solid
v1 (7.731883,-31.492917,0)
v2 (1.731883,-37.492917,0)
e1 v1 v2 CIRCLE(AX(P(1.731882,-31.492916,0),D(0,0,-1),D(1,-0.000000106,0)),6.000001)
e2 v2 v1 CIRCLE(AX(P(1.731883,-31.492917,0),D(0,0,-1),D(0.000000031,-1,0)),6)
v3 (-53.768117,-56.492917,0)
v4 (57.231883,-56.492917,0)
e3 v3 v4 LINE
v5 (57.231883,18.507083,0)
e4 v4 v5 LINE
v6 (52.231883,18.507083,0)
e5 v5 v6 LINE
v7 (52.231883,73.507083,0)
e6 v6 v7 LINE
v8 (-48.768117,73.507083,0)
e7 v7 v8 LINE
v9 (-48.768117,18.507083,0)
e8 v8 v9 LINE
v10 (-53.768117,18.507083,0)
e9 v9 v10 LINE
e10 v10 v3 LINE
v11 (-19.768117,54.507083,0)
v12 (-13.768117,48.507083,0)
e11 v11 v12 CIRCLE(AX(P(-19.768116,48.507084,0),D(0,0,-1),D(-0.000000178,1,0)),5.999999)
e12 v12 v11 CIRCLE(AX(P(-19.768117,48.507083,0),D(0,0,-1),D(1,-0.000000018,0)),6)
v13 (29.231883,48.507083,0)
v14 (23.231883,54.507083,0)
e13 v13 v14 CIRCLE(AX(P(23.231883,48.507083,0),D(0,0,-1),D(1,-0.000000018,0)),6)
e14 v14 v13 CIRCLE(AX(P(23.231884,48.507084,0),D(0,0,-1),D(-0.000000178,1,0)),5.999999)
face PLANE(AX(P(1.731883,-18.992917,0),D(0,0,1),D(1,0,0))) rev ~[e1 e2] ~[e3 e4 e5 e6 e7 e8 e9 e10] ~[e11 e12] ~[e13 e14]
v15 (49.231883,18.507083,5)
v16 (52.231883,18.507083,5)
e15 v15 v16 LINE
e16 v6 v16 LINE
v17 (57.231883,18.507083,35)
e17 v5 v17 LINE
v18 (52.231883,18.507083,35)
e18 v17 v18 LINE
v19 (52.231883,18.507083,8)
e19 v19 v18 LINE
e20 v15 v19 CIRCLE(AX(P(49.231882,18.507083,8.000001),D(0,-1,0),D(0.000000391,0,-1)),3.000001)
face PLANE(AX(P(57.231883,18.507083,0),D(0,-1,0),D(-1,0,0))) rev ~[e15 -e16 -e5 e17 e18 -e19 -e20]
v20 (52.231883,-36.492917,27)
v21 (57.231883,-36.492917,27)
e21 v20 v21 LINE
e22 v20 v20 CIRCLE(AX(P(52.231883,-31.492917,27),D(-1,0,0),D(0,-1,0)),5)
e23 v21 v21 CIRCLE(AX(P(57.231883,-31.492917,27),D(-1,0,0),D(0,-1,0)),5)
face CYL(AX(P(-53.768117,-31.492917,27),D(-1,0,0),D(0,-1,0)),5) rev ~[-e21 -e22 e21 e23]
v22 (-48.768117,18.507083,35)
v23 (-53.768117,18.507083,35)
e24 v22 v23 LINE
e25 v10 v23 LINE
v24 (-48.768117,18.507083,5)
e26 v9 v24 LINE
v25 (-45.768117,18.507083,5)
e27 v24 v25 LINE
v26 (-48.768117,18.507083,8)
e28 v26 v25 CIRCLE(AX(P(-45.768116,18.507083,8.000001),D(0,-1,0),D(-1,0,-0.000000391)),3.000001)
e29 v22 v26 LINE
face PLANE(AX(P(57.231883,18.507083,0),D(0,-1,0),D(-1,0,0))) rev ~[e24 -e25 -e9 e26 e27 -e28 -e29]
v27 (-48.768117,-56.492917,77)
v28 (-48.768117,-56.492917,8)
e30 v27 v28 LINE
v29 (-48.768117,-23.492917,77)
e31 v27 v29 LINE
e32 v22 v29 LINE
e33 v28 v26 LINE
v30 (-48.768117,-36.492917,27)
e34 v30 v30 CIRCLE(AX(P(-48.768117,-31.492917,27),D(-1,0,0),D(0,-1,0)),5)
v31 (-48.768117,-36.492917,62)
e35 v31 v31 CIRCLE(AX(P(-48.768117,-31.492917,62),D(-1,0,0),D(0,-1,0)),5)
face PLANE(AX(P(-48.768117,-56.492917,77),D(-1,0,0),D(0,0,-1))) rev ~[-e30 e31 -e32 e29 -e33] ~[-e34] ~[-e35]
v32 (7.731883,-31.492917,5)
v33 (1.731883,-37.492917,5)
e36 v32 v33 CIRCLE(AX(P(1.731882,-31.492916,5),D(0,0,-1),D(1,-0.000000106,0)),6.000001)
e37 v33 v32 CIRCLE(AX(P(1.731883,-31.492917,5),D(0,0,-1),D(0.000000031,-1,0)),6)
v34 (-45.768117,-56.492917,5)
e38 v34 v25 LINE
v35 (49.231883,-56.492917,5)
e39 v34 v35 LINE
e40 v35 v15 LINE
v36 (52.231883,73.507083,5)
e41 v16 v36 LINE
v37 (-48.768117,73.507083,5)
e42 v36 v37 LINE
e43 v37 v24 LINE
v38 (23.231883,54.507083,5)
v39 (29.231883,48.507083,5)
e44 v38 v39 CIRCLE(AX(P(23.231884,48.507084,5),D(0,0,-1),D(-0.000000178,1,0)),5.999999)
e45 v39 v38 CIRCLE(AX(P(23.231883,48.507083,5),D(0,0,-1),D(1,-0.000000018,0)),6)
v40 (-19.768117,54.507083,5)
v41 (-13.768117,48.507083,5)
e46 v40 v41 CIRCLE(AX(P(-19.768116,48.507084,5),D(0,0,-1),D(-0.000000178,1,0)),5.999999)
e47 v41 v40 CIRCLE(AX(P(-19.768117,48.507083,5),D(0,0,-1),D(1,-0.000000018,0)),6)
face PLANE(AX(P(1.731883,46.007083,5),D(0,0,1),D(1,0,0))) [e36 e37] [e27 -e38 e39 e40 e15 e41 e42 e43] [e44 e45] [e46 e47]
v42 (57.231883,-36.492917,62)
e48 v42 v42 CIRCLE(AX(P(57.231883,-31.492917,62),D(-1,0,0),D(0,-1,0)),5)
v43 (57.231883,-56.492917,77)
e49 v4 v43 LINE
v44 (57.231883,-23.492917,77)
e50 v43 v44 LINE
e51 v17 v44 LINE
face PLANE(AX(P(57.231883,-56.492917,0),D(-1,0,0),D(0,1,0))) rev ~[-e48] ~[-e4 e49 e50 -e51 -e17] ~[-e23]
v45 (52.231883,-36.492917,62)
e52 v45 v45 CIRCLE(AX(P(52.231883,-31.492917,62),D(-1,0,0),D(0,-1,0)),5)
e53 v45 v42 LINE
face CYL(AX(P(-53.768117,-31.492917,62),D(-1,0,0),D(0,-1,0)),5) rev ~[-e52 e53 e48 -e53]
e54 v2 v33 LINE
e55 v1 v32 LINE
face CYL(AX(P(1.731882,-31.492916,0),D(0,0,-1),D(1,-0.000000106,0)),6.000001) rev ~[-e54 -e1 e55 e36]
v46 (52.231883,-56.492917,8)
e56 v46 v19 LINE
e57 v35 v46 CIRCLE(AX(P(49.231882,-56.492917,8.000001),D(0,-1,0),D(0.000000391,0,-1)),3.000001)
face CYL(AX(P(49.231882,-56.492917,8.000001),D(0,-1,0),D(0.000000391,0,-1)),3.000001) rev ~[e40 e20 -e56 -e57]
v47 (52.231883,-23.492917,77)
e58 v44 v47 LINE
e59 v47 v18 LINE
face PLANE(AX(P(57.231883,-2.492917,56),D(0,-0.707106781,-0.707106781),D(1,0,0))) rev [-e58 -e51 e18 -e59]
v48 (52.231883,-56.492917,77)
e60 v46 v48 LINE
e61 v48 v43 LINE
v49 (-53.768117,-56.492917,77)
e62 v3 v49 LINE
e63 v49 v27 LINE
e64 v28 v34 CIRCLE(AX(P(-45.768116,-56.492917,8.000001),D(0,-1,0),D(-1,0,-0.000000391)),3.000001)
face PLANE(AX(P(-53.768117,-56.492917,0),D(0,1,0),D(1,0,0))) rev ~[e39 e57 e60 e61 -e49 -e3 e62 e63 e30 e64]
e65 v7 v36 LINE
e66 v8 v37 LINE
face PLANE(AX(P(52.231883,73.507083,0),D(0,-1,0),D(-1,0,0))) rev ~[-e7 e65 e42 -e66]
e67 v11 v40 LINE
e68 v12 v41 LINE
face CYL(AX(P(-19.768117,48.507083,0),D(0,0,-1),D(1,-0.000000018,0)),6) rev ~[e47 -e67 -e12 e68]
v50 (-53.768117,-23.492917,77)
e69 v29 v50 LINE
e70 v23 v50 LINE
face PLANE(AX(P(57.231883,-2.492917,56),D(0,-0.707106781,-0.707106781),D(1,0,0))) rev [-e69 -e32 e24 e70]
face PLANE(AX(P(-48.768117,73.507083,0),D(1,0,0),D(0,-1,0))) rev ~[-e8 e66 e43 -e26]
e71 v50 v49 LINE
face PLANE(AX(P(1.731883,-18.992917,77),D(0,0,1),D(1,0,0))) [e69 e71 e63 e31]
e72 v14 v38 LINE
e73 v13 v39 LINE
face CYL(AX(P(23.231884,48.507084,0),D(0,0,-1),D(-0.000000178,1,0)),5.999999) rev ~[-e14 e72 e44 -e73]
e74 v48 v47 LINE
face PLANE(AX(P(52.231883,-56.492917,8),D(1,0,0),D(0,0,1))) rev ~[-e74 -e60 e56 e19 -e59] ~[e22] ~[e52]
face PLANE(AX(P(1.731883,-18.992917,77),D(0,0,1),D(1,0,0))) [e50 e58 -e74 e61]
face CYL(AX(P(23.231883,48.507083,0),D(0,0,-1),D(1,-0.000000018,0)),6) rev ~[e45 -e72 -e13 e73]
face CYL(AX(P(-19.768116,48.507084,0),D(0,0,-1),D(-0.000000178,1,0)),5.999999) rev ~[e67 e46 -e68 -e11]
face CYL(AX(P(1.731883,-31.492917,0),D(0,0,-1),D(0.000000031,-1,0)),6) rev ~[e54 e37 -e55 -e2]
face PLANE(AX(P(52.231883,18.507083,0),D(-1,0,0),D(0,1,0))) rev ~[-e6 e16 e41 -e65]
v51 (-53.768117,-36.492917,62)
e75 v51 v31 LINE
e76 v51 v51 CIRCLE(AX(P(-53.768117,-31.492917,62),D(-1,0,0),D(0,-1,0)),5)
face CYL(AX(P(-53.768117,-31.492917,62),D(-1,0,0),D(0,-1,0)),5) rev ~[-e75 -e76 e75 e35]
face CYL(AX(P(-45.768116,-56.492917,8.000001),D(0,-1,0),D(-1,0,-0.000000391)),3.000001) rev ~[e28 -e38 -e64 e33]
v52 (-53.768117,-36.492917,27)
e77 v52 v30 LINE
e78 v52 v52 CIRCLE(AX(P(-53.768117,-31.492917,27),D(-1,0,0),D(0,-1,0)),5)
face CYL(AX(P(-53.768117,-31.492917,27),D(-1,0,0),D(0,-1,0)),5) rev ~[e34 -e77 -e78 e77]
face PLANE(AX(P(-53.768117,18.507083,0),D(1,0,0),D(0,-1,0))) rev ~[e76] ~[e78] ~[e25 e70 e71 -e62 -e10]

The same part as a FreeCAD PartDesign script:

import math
import FreeCAD as App
import Part
import Sketcher
Q = App.Units.Quantity


def edges_at(feature, points):
    """Names of the edges that pass closest to the given points."""
    edges = feature.Shape.Edges
    near = lambda p: min(range(len(edges)), key=lambda i: edges[i].distToShape(Part.Vertex(*p))[0])
    return sorted({f"Edge{near(p) + 1}" for p in points})

doc = App.newDocument("Part")
body = doc.addObject("PartDesign::Body", "Body")

sketch1 = body.newObject("Sketcher::SketchObject", "Sketch")
sketch1.AttachmentSupport = (doc.getObject("XY_Plane"), [""])
sketch1.MapMode = "FlatFace"
sketch1.addGeometry([
    Part.LineSegment(App.Vector(-54, 19, 0), App.Vector(-54, -56, 0)),
    Part.LineSegment(App.Vector(-54, -56, 0), App.Vector(57, -56, 0)),
    Part.LineSegment(App.Vector(57, -56, 0), App.Vector(57, 19, 0)),
    Part.LineSegment(App.Vector(57, 19, 0), App.Vector(-54, 19, 0)),
    Part.ArcOfCircle(Part.Circle(App.Vector(2, -31, 0), App.Vector(0, 0, 1), 6), math.radians(0), math.radians(270)),
    Part.ArcOfCircle(Part.Circle(App.Vector(2, -31, 0), App.Vector(0, 0, 1), 6), math.radians(-90), math.radians(0)),
], False)
sketch1.addConstraint([
    Sketcher.Constraint("Coincident", 0, 2, 1, 1),
    Sketcher.Constraint("Coincident", 1, 2, 2, 1),
    Sketcher.Constraint("Coincident", 2, 2, 3, 1),
    Sketcher.Constraint("Coincident", 3, 2, 0, 1),
    Sketcher.Constraint("Tangent", 4, 1, 5, 2),
    Sketcher.Constraint("Coincident", 5, 1, 4, 2),
    Sketcher.Constraint("Vertical", 0),
    Sketcher.Constraint("Horizontal", 1),
    Sketcher.Constraint("Vertical", 2),
    Sketcher.Constraint("Horizontal", 3),
    Sketcher.Constraint("Horizontal", 5, 3, 4, 1),
    Sketcher.Constraint("Vertical", 4, 3, 5, 1),
    Sketcher.Constraint("Radius", 4, Q("6 mm")),
    Sketcher.Constraint("DistanceX", 1, 1, 1, 2, Q("111 mm")),
    Sketcher.Constraint("DistanceY", 0, 2, 0, 1, Q("75 mm")),
    Sketcher.Constraint("DistanceY", 0, 2, 5, 3, Q("25.000001 mm")),
    Sketcher.Constraint("DistanceX", 0, 2, 5, 3, Q("55.499999 mm")),
    Sketcher.Constraint("DistanceX", -1, 1, 4, 3, Q("1.731883 mm")),
    Sketcher.Constraint("DistanceY", 4, 3, -1, 1, Q("31.492917 mm")),
])
pad1 = body.newObject("PartDesign::Pad", "Pad")
pad1.Profile = sketch1
pad1.Length = 77

sketch2 = body.newObject("Sketcher::SketchObject", "Sketch001")
sketch2.AttachmentSupport = (doc.getObject("XY_Plane"), [""])
sketch2.MapMode = "FlatFace"
sketch2.addGeometry([
    Part.LineSegment(App.Vector(-49, 74, 0), App.Vector(-49, 19, 0)),
    Part.LineSegment(App.Vector(-49, 19, 0), App.Vector(52, 19, 0)),
    Part.LineSegment(App.Vector(52, 19, 0), App.Vector(52, 74, 0)),
    Part.LineSegment(App.Vector(52, 74, 0), App.Vector(-49, 74, 0)),
    Part.ArcOfCircle(Part.Circle(App.Vector(-20, 49, 0), App.Vector(0, 0, 1), 6), math.radians(0), math.radians(90)),
    Part.ArcOfCircle(Part.Circle(App.Vector(-20, 49, 0), App.Vector(0, 0, 1), 6), math.radians(90), math.radians(360)),
    Part.ArcOfCircle(Part.Circle(App.Vector(23, 49, 0), App.Vector(0, 0, 1), 6), math.radians(0), math.radians(90)),
    Part.ArcOfCircle(Part.Circle(App.Vector(23, 49, 0), App.Vector(0, 0, 1), 6), math.radians(90), math.radians(360)),
], False)
sketch2.addConstraint([
    Sketcher.Constraint("Coincident", 0, 2, 1, 1),
    Sketcher.Constraint("Coincident", 1, 2, 2, 1),
    Sketcher.Constraint("Coincident", 2, 2, 3, 1),
    Sketcher.Constraint("Coincident", 3, 2, 0, 1),
    Sketcher.Constraint("Tangent", 4, 1, 5, 2),
    Sketcher.Constraint("Coincident", 5, 1, 4, 2),
    Sketcher.Constraint("Tangent", 6, 1, 7, 2),
    Sketcher.Constraint("Coincident", 7, 1, 6, 2),
    Sketcher.Constraint("Vertical", 0),
    Sketcher.Constraint("Horizontal", 1),
    Sketcher.Constraint("Vertical", 2),
    Sketcher.Constraint("Horizontal", 3),
    Sketcher.Constraint("Equal", 5, 6),
    Sketcher.Constraint("Horizontal", 5, 3, 6, 3),
    Sketcher.Constraint("Horizontal", 7, 3, 4, 1),
    Sketcher.Constraint("Horizontal", 4, 1, 6, 1),
    Sketcher.Constraint("Vertical", 4, 3, 5, 1),
    Sketcher.Constraint("Vertical", 6, 3, 7, 1),
    Sketcher.Constraint("Radius", 4, Q("5.999999 mm")),
    Sketcher.Constraint("DistanceX", 1, 1, 1, 2, Q("101 mm")),
    Sketcher.Constraint("DistanceY", 0, 2, 0, 1, Q("55 mm")),
    Sketcher.Constraint("DistanceX", 4, 3, 6, 3, Q("43 mm")),
    Sketcher.Constraint("DistanceX", 0, 2, 5, 3, Q("29 mm")),
    Sketcher.Constraint("DistanceY", 0, 2, 5, 3, Q("30 mm")),
    Sketcher.Constraint("DistanceX", 4, 3, -1, 1, Q("19.768116 mm")),
    Sketcher.Constraint("DistanceY", -1, 1, 4, 3, Q("48.507084 mm")),
])
pad2 = body.newObject("PartDesign::Pad", "Pad001")
pad2.Profile = sketch2
pad2.Length = 5
doc.recompute()

chamfer = body.newObject("PartDesign::Chamfer", "Chamfer")
chamfer.Base = (pad2, edges_at(pad2, [(1.732, 18.507, 77)]))
chamfer.Size = 42

sketch3 = body.newObject("Sketcher::SketchObject", "Sketch002")
sketch3.AttachmentSupport = (doc.getObject("YZ_Plane"), [""])
sketch3.MapMode = "FlatFace"
sketch3.AttachmentOffset = App.Placement(App.Vector(0, 0, -53.768117), App.Rotation())
sketch3.addGeometry([
    Part.Circle(App.Vector(-31, 27, 0), App.Vector(0, 0, 1), 5),
    Part.Circle(App.Vector(-31, 62, 0), App.Vector(0, 0, 1), 5),
], False)
sketch3.addConstraint([
    Sketcher.Constraint("Equal", 0, 1),
    Sketcher.Constraint("Vertical", 0, 3, 1, 3),
    Sketcher.Constraint("Diameter", 0, Q("10 mm")),
    Sketcher.Constraint("DistanceY", -1, 1, 0, 3, Q("27 mm")),
    Sketcher.Constraint("DistanceY", -1, 1, 1, 3, Q("62 mm")),
    Sketcher.Constraint("DistanceX", 0, 3, -1, 1, Q("31.492917 mm")),
])
pocket1 = body.newObject("PartDesign::Pocket", "Pocket")
pocket1.Profile = sketch3
pocket1.Length = 1000
pocket1.Reversed = True

sketch4 = body.newObject("Sketcher::SketchObject", "Sketch003")
sketch4.AttachmentSupport = (doc.getObject("XZ_Plane"), [""])
sketch4.MapMode = "FlatFace"
sketch4.AttachmentOffset = App.Placement(App.Vector(0, 0, 56.492917), App.Rotation())
sketch4.addGeometry([
    Part.LineSegment(App.Vector(52.2, 77, 0), App.Vector(-48.8, 77, 0)),
    Part.LineSegment(App.Vector(-48.8, 77, 0), App.Vector(-48.8, 8, 0)),
    Part.ArcOfCircle(Part.Circle(App.Vector(-45.8, 8, 0), App.Vector(0, 0, 1), 3), math.radians(-180), math.radians(-90)),
    Part.LineSegment(App.Vector(-45.8, 5, 0), App.Vector(49.2, 5, 0)),
    Part.ArcOfCircle(Part.Circle(App.Vector(49.2, 8, 0), App.Vector(0, 0, 1), 3), math.radians(-90), math.radians(0)),
    Part.LineSegment(App.Vector(52.2, 8, 0), App.Vector(52.2, 77, 0)),
], False)
sketch4.addConstraint([
    Sketcher.Constraint("Coincident", 0, 2, 1, 1),
    Sketcher.Constraint("Tangent", 1, 2, 2, 1),
    Sketcher.Constraint("Tangent", 2, 2, 3, 1),
    Sketcher.Constraint("Tangent", 3, 2, 4, 1),
    Sketcher.Constraint("Tangent", 4, 2, 5, 1),
    Sketcher.Constraint("Coincident", 5, 2, 0, 1),
    Sketcher.Constraint("Horizontal", 0),
    Sketcher.Constraint("Vertical", 1),
    Sketcher.Constraint("Horizontal", 3),
    Sketcher.Constraint("Vertical", 5),
    Sketcher.Constraint("Equal", 2, 4),
    Sketcher.Constraint("Radius", 2, Q("3.000001 mm")),
    Sketcher.Constraint("DistanceX", 0, 2, 0, 1, Q("101 mm")),
    Sketcher.Constraint("DistanceY", 1, 2, 1, 1, Q("69 mm")),
    Sketcher.Constraint("DistanceY", -1, 1, 2, 3, Q("8.000001 mm")),
    Sketcher.Constraint("DistanceX", -1, 1, 4, 3, Q("49.231882 mm")),
])
pocket2 = body.newObject("PartDesign::Pocket", "Pocket001")
pocket2.Profile = sketch4
pocket2.Length = 10000

doc.recompute()
